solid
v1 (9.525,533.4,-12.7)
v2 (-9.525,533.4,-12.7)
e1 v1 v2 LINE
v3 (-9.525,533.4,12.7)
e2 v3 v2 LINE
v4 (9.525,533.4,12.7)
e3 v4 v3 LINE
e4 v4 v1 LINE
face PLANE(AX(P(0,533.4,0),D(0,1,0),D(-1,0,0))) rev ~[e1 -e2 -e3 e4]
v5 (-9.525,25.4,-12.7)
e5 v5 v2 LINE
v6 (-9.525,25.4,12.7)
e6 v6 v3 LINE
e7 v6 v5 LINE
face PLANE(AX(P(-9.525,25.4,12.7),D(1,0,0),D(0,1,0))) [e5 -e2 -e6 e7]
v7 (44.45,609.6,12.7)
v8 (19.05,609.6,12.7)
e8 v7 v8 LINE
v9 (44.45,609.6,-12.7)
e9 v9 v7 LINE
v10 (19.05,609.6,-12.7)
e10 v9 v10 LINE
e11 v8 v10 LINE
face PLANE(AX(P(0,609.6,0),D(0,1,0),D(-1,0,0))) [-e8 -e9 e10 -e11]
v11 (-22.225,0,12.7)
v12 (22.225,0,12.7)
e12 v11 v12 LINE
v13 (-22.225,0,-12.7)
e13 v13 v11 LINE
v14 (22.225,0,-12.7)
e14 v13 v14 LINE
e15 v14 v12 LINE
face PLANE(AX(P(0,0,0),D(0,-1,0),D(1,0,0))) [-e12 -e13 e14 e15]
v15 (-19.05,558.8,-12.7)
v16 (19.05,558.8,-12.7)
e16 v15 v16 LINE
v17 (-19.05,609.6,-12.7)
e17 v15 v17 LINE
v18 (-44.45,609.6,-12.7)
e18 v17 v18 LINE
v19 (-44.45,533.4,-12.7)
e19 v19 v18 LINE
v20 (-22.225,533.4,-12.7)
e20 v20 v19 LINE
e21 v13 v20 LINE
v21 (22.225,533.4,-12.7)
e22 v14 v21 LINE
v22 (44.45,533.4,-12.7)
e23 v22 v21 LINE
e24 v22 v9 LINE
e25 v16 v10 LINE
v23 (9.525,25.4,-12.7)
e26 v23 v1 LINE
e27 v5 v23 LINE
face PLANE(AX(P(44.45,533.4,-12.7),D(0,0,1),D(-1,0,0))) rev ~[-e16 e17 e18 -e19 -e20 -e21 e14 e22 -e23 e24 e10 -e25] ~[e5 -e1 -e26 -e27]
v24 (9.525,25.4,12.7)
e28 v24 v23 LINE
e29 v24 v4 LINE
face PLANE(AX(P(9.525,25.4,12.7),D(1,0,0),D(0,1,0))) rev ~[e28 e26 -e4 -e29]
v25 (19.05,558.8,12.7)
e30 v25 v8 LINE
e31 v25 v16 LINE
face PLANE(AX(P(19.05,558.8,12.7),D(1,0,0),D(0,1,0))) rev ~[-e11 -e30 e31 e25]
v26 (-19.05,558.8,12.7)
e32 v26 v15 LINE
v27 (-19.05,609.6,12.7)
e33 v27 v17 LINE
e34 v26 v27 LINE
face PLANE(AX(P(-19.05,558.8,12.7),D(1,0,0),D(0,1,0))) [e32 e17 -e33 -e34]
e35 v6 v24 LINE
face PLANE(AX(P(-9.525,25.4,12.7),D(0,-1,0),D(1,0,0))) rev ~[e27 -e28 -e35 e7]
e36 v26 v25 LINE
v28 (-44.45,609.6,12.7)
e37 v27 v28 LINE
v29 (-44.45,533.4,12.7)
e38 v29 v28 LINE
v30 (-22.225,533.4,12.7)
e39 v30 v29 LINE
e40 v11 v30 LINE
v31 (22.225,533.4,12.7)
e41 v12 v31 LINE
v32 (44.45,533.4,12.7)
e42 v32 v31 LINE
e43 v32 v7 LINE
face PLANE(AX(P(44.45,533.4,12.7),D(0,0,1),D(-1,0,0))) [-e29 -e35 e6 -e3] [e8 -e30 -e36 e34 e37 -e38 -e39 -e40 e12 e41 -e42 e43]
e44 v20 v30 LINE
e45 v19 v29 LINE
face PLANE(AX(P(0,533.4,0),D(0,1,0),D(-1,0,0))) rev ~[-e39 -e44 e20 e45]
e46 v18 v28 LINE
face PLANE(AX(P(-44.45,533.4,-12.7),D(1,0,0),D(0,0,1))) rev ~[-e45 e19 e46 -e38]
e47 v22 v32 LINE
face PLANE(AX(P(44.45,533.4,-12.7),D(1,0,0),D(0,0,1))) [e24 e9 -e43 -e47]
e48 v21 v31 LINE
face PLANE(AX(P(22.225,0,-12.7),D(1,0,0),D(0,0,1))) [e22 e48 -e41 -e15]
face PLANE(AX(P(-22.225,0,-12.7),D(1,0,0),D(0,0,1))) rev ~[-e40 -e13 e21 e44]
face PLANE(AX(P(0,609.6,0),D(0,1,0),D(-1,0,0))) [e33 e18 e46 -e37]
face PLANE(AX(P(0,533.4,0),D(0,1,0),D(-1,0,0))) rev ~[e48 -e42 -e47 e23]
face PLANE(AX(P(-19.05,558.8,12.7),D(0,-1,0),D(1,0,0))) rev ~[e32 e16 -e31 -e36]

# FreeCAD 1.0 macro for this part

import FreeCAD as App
import Part
import Sketcher
Q = App.Units.Quantity


def add_polygon(sketch, points):
    """Adds a closed chain of lines whose ends are joined by coincident constraints."""
    first, n = sketch.GeometryCount, len(points)
    for a, b in zip(points, points[1:] + points[:1]):
        sketch.addGeometry(Part.LineSegment(App.Vector(*a, 0), App.Vector(*b, 0)), False)
    for i in range(n):
        sketch.addConstraint(Sketcher.Constraint("Coincident", first + i, 2, first + (i + 1) % n, 1))

doc = App.newDocument("Part")
body = doc.addObject("PartDesign::Body", "Body")

# Sketch on XZ plane
sketch1 = doc.addObject("Sketcher::SketchObject", "Sketch")
body.addObject(sketch1)
sketch1.AttachmentSupport = (doc.XZ_Plane, [""])
sketch1.MapMode = "FlatFace"
add_polygon(sketch1, [(-22.225, 12.7), (-22.225, -12.7), (22.225, -12.7), (22.225, 12.7)])  # lines 0-3
sketch1.addConstraint([
    Sketcher.Constraint("Vertical", 0),
    Sketcher.Constraint("Horizontal", 1),
    Sketcher.Constraint("Vertical", 2),
    Sketcher.Constraint("Horizontal", 3),
    Sketcher.Constraint("Symmetric", 0, 2, 2, 2, -1, 1),
    Sketcher.Constraint("DistanceY", 0, 2, 0, 1, Q("1 in")),
    Sketcher.Constraint("DistanceX", 1, 1, 1, 2, Q("1.75 in")),
])
pad1 = doc.addObject("PartDesign::Pad", "Pad")
body.addObject(pad1)
pad1.Profile = sketch1
pad1.Length = Q("21 in")
pad1.Reversed = True

# Sketch on XY plane
sketch2 = doc.addObject("Sketcher::SketchObject", "Sketch001")
body.addObject(sketch2)
sketch2.AttachmentSupport = (doc.XY_Plane, [""])
sketch2.MapMode = "FlatFace"
sketch2.AttachmentOffset = App.Placement(App.Vector(0, 0, 0.5 * 25.4), App.Rotation())
add_polygon(sketch2, [(-9.525, 533.4), (-9.525, 25.4), (9.525, 25.4), (9.525, 533.4)])  # lines 0-3
sketch2.addConstraint([
    Sketcher.Constraint("Vertical", 0),
    Sketcher.Constraint("Horizontal", 1),
    Sketcher.Constraint("Vertical", 2),
    Sketcher.Constraint("Horizontal", 3),
    Sketcher.Constraint("DistanceY", 0, 2, 0, 1, Q("20 in")),
    Sketcher.Constraint("DistanceY", -1, 1, 0, 2, Q("1 in")),
    Sketcher.Constraint("DistanceX", 1, 1, 1, 2, Q("0.75 in")),
    Sketcher.Constraint("DistanceX", 0, 2, -1, 1, Q("0.375 in")),
])
pocket1 = doc.addObject("PartDesign::Pocket", "Pocket")
body.addObject(pocket1)
pocket1.Profile = sketch2
pocket1.Length = Q("1 in")

# Sketch on XZ plane
sketch3 = doc.addObject("Sketcher::SketchObject", "Sketch002")
body.addObject(sketch3)
sketch3.AttachmentSupport = (doc.XZ_Plane, [""])
sketch3.MapMode = "FlatFace"
sketch3.AttachmentOffset = App.Placement(App.Vector(0, 0, -21 * 25.4), App.Rotation())
add_polygon(sketch3, [(44.45, 12.7), (44.45, -12.7), (-44.45, -12.7), (-44.45, 12.7)])  # lines 0-3
sketch3.addConstraint([
    Sketcher.Constraint("Vertical", 0),
    Sketcher.Constraint("Horizontal", 1),
    Sketcher.Constraint("Vertical", 2),
    Sketcher.Constraint("Horizontal", 3),
    Sketcher.Constraint("Symmetric", 0, 2, 2, 2, -1, 1),
    Sketcher.Constraint("DistanceY", 0, 2, 0, 1, Q("1 in")),
    Sketcher.Constraint("DistanceX", 1, 2, 1, 1, Q("3.5 in")),
])
pad2 = doc.addObject("PartDesign::Pad", "Pad001")
body.addObject(pad2)
pad2.Profile = sketch3
pad2.Length = Q("3 in")
pad2.Reversed = True

# Sketch on XY plane
sketch4 = doc.addObject("Sketcher::SketchObject", "Sketch003")
body.addObject(sketch4)
sketch4.AttachmentSupport = (doc.XY_Plane, [""])
sketch4.MapMode = "FlatFace"
sketch4.AttachmentOffset = App.Placement(App.Vector(0, 0, 0.5 * 25.4), App.Rotation())
add_polygon(sketch4, [(-19.05, 609.6), (-19.05, 558.8), (19.05, 558.8), (19.05, 609.6)])  # lines 0-3
sketch4.addConstraint([
    Sketcher.Constraint("Vertical", 0),
    Sketcher.Constraint("Horizontal", 1),
    Sketcher.Constraint("Vertical", 2),
    Sketcher.Constraint("Horizontal", 3),
    Sketcher.Constraint("DistanceY", 0, 2, 0, 1, Q("2 in")),
    Sketcher.Constraint("DistanceX", 1, 1, 1, 2, Q("1.5 in")),
    Sketcher.Constraint("DistanceY", -1, 1, 0, 2, Q("22 in")),
    Sketcher.Constraint("DistanceX", 0, 2, -1, 1, Q("0.75 in")),
])
pocket2 = doc.addObject("PartDesign::Pocket", "Pocket001")
body.addObject(pocket2)
pocket2.Profile = sketch4
pocket2.Length = Q("1 in")

doc.recompute()
